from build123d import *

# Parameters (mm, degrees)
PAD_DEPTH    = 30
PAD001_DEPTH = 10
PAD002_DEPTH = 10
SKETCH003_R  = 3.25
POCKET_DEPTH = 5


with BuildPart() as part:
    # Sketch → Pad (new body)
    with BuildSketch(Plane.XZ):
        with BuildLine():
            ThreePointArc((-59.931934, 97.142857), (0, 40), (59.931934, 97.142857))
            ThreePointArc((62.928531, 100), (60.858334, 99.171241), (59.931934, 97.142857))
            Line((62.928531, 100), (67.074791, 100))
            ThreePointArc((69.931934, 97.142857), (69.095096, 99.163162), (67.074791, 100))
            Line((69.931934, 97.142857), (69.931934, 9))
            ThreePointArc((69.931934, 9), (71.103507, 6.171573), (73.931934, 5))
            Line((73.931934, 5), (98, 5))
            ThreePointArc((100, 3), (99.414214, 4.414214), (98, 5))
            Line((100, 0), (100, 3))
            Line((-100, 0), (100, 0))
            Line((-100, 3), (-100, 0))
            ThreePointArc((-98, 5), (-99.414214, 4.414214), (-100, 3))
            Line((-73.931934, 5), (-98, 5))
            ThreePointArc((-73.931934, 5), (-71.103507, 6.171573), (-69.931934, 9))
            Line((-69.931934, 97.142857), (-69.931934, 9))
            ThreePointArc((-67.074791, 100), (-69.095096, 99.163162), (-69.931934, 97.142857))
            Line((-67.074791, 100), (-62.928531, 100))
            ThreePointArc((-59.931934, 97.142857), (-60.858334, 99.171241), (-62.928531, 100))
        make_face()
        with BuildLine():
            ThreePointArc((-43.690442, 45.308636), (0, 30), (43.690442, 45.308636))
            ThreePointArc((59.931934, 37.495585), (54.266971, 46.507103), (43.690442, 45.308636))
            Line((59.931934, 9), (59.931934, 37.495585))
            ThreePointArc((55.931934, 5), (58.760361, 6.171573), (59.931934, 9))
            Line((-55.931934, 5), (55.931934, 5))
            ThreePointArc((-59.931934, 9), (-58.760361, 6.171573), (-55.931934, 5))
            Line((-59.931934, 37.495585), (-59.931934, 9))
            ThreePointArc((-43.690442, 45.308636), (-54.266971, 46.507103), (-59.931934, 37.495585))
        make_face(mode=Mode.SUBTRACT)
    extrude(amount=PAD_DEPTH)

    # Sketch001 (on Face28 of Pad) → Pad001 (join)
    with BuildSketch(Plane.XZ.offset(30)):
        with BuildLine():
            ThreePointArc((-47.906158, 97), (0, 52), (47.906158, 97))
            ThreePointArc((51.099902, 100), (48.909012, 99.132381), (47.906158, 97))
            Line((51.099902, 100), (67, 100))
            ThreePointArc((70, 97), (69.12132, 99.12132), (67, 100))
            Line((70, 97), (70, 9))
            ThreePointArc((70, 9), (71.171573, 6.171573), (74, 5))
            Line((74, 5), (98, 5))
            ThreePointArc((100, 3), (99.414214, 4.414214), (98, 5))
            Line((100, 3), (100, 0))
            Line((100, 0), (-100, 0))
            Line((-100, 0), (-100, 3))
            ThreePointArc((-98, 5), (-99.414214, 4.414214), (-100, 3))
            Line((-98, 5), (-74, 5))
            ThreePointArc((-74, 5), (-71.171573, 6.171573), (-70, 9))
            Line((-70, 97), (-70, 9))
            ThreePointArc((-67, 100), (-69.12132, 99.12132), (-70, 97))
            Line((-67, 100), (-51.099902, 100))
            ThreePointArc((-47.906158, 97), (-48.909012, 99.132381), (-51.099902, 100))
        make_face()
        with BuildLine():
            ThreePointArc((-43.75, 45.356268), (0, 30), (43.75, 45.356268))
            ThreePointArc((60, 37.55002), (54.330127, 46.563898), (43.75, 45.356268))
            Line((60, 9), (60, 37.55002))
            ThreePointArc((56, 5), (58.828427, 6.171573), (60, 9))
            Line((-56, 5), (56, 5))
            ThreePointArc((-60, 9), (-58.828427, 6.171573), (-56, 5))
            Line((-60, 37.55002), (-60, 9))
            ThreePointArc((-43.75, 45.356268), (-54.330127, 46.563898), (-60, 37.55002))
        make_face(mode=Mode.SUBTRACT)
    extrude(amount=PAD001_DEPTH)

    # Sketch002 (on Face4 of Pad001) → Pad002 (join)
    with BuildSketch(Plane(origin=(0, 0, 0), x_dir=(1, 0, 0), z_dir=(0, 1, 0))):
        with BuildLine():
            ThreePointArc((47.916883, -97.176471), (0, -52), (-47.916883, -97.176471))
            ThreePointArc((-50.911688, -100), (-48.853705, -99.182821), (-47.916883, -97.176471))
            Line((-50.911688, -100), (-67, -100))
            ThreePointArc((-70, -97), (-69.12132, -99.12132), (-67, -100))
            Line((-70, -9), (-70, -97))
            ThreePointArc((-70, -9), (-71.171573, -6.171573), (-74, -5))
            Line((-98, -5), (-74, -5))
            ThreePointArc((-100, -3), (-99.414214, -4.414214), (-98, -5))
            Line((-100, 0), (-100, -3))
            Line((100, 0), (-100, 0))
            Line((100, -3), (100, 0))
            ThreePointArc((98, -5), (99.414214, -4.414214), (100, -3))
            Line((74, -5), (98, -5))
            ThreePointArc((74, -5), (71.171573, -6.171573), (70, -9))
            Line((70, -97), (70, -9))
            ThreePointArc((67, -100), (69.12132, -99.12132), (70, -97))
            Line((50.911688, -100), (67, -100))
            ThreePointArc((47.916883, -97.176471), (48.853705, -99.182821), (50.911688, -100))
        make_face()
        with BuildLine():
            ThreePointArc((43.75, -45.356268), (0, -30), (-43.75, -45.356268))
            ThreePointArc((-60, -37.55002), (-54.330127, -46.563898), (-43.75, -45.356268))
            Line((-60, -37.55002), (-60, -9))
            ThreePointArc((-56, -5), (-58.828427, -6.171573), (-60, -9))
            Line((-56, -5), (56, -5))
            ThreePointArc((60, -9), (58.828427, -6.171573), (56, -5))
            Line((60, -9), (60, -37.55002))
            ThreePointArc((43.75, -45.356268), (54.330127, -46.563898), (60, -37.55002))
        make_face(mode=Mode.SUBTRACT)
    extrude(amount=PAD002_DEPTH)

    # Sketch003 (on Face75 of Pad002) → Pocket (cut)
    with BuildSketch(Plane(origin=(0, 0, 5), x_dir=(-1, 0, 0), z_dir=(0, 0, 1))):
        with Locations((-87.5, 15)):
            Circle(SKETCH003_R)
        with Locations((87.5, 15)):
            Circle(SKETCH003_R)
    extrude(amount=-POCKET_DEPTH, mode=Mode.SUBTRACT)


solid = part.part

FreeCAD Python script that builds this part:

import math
import FreeCAD as App
import Part
import Sketcher

V = App.Vector

doc = App.newDocument("Part")
body = doc.addObject("PartDesign::Body", "Body")

sketch1 = body.newObject("Sketcher::SketchObject", "Sketch")
sketch1.AttachmentSupport = (doc.getObject("XZ_Plane"), [""])
sketch1.MapMode = "FlatFace"
sketch1.addGeometry([
    Part.ArcOfCircle(Part.Circle(V(0, 100, 0), V(0, 0, 1), 60), math.radians(-177), math.radians(-3)),
    Part.ArcOfCircle(Part.Circle(V(-62.9, 97, 0), V(0, 0, 1), 3), math.radians(3), math.radians(90)),
    Part.LineSegment(V(-62.9, 100, 0), V(-67.1, 100, 0)),
    Part.ArcOfCircle(Part.Circle(V(-67.1, 97.1, 0), V(0, 0, 1), 2.9), math.radians(90), math.radians(180)),
    Part.LineSegment(V(-69.9, 97.1, 0), V(-69.9, 9, 0)),
    Part.ArcOfCircle(Part.Circle(V(-73.9, 9, 0), V(0, 0, 1), 4), math.radians(-90), math.radians(0)),
    Part.LineSegment(V(-73.9, 5, 0), V(-98, 5, 0)),
    Part.ArcOfCircle(Part.Circle(V(-98, 3, 0), V(0, 0, 1), 2), math.radians(90), math.radians(180)),
    Part.LineSegment(V(-100, 3, 0), V(-100, 0, 0)),
    Part.LineSegment(V(-100, 0, 0), V(100, 0, 0)),
    Part.LineSegment(V(100, 0, 0), V(100, 3, 0)),
    Part.ArcOfCircle(Part.Circle(V(98, 3, 0), V(0, 0, 1), 2), math.radians(0), math.radians(90)),
    Part.LineSegment(V(98, 5, 0), V(73.9, 5, 0)),
    Part.ArcOfCircle(Part.Circle(V(73.9, 9, 0), V(0, 0, 1), 4), math.radians(-180), math.radians(-90)),
    Part.LineSegment(V(69.9, 9, 0), V(69.9, 97.1, 0)),
    Part.ArcOfCircle(Part.Circle(V(67.1, 97.1, 0), V(0, 0, 1), 2.9), math.radians(0), math.radians(90)),
    Part.LineSegment(V(67.1, 100, 0), V(62.9, 100, 0)),
    Part.ArcOfCircle(Part.Circle(V(62.9, 97, 0), V(0, 0, 1), 3), math.radians(90), math.radians(177)),
    Part.ArcOfCircle(Part.Circle(V(0, 100, 0), V(0, 0, 1), 70), math.radians(-129), math.radians(-51)),
    Part.ArcOfCircle(Part.Circle(V(49.9, 37.5, 0), V(0, 0, 1), 10), math.radians(0), math.radians(129)),
    Part.LineSegment(V(59.9, 37.5, 0), V(59.9, 9, 0)),
    Part.ArcOfCircle(Part.Circle(V(55.9, 9, 0), V(0, 0, 1), 4), math.radians(-90), math.radians(0)),
    Part.LineSegment(V(55.9, 5, 0), V(-55.9, 5, 0)),
    Part.ArcOfCircle(Part.Circle(V(-55.9, 9, 0), V(0, 0, 1), 4), math.radians(-180), math.radians(-90)),
    Part.LineSegment(V(-59.9, 9, 0), V(-59.9, 37.5, 0)),
    Part.ArcOfCircle(Part.Circle(V(-49.9, 37.5, 0), V(0, 0, 1), 10), math.radians(51), math.radians(180)),
], False)
sketch1.addConstraint([
    Sketcher.Constraint("Tangent", 0, 1, 1, 1),
    Sketcher.Constraint("Tangent", 1, 2, 2, 1),
    Sketcher.Constraint("Tangent", 2, 2, 3, 1),
    Sketcher.Constraint("Tangent", 3, 2, 4, 1),
    Sketcher.Constraint("Tangent", 4, 2, 5, 2),
    Sketcher.Constraint("Tangent", 5, 1, 6, 1),
    Sketcher.Constraint("Tangent", 6, 2, 7, 1),
    Sketcher.Constraint("Tangent", 7, 2, 8, 1),
    Sketcher.Constraint("Coincident", 8, 2, 9, 1),
    Sketcher.Constraint("Coincident", 9, 2, 10, 1),
    Sketcher.Constraint("Tangent", 10, 2, 11, 1),
    Sketcher.Constraint("Tangent", 11, 2, 12, 1),
    Sketcher.Constraint("Tangent", 12, 2, 13, 2),
    Sketcher.Constraint("Tangent", 13, 1, 14, 1),
    Sketcher.Constraint("Tangent", 14, 2, 15, 1),
    Sketcher.Constraint("Tangent", 15, 2, 16, 1),
    Sketcher.Constraint("Tangent", 16, 2, 17, 1),
    Sketcher.Constraint("Tangent", 17, 2, 0, 2),
    Sketcher.Constraint("Tangent", 18, 2, 19, 2),
    Sketcher.Constraint("Tangent", 19, 1, 20, 1),
    Sketcher.Constraint("Tangent", 20, 2, 21, 2),
    Sketcher.Constraint("Tangent", 21, 1, 22, 1),
    Sketcher.Constraint("Tangent", 22, 2, 23, 2),
    Sketcher.Constraint("Tangent", 23, 1, 24, 1),
    Sketcher.Constraint("Tangent", 24, 2, 25, 2),
    Sketcher.Constraint("Tangent", 25, 1, 18, 1),
    Sketcher.Constraint("Horizontal", 2),
    Sketcher.Constraint("Vertical", 4),
    Sketcher.Constraint("Horizontal", 6),
    Sketcher.Constraint("Vertical", 8),
    Sketcher.Constraint("Horizontal", 9),
    Sketcher.Constraint("Vertical", 10),
    Sketcher.Constraint("Horizontal", 12),
    Sketcher.Constraint("Vertical", 14),
    Sketcher.Constraint("Horizontal", 16),
    Sketcher.Constraint("Vertical", 20),
    Sketcher.Constraint("Horizontal", 22),
    Sketcher.Constraint("Vertical", 24),
    Sketcher.Constraint("Coincident", 18, 3, 0, 3),
    Sketcher.Constraint("Equal", 7, 11),
    Sketcher.Constraint("Equal", 5, 13),
    Sketcher.Constraint("Equal", 3, 15),
    Sketcher.Constraint("Equal", 1, 17),
    Sketcher.Constraint("Equal", 13, 21),
    Sketcher.Constraint("Equal", 21, 23),
    Sketcher.Constraint("Equal", 19, 25),
    Sketcher.Constraint("Symmetric", 8, 2, 9, 2, -1, 1),
    Sketcher.Constraint("Symmetric", 5, 3, 13, 3, -2),
    Sketcher.Constraint("Symmetric", 1, 3, 17, 3, -2),
    Sketcher.Constraint("Horizontal", 13, 3, 21, 3),
    Sketcher.Constraint("Horizontal", 19, 3, 25, 3),
    Sketcher.Constraint("Horizontal", 15, 3, 0, 1),
    Sketcher.Constraint("Horizontal", 18, 3, 1, 2),
    Sketcher.Constraint("Vertical", 17, 2, 19, 1),
    Sketcher.Constraint("Radius", 0, 60.0),
    Sketcher.Constraint("Radius", 1, 2.999999),
    Sketcher.Constraint("Radius", 5, 4.0),
    Sketcher.Constraint("Radius", 7, 1.999999),
    Sketcher.Constraint("Radius", 18, 70.000001),
    Sketcher.Constraint("Radius", 19, 9.999999),
    Sketcher.Constraint("DistanceX", 9, 1, 9, 2, 200.0),
    Sketcher.Constraint("DistanceY", 8, 2, 8, 1, 3.0),
    Sketcher.Constraint("DistanceY", -1, 1, 0, 3, 100.0),
    Sketcher.Constraint("DistanceX", 19, 3, 13, 3, 24.0),
])
pad1 = body.newObject("PartDesign::Pad", "Pad")
pad1.Profile = sketch1
pad1.Length = 30

sketch2 = body.newObject("Sketcher::SketchObject", "Sketch001")
sketch2.AttachmentSupport = (doc.getObject("XZ_Plane"), [""])
sketch2.MapMode = "FlatFace"
sketch2.AttachmentOffset = App.Placement(V(0, 0, 30), App.Rotation())
sketch2.addGeometry([
    Part.ArcOfCircle(Part.Circle(V(0, 100, 0), V(0, 0, 1), 48), math.radians(-176), math.radians(-4)),
    Part.ArcOfCircle(Part.Circle(V(-51.1, 96.8, 0), V(0, 0, 1), 3.2), math.radians(4), math.radians(90)),
    Part.LineSegment(V(-51.1, 100, 0), V(-67, 100, 0)),
    Part.ArcOfCircle(Part.Circle(V(-67, 97, 0), V(0, 0, 1), 3), math.radians(90), math.radians(180)),
    Part.LineSegment(V(-70, 97, 0), V(-70, 9, 0)),
    Part.ArcOfCircle(Part.Circle(V(-74, 9, 0), V(0, 0, 1), 4), math.radians(-90), math.radians(0)),
    Part.LineSegment(V(-74, 5, 0), V(-98, 5, 0)),
    Part.ArcOfCircle(Part.Circle(V(-98, 3, 0), V(0, 0, 1), 2), math.radians(90), math.radians(180)),
    Part.LineSegment(V(-100, 3, 0), V(-100, 0, 0)),
    Part.LineSegment(V(-100, 0, 0), V(100, 0, 0)),
    Part.LineSegment(V(100, 0, 0), V(100, 3, 0)),
    Part.ArcOfCircle(Part.Circle(V(98, 3, 0), V(0, 0, 1), 2), math.radians(0), math.radians(90)),
    Part.LineSegment(V(98, 5, 0), V(74, 5, 0)),
    Part.ArcOfCircle(Part.Circle(V(74, 9, 0), V(0, 0, 1), 4), math.radians(-180), math.radians(-90)),
    Part.LineSegment(V(70, 9, 0), V(70, 97, 0)),
    Part.ArcOfCircle(Part.Circle(V(67, 97, 0), V(0, 0, 1), 3), math.radians(0), math.radians(90)),
    Part.LineSegment(V(67, 100, 0), V(51.1, 100, 0)),
    Part.ArcOfCircle(Part.Circle(V(51.1, 96.8, 0), V(0, 0, 1), 3.2), math.radians(90), math.radians(176)),
    Part.ArcOfCircle(Part.Circle(V(0, 100, 0), V(0, 0, 1), 70), math.radians(-129), math.radians(-51)),
    Part.ArcOfCircle(Part.Circle(V(50, 37.6, 0), V(0, 0, 1), 10), math.radians(0), math.radians(129)),
    Part.LineSegment(V(60, 37.6, 0), V(60, 9, 0)),
    Part.ArcOfCircle(Part.Circle(V(56, 9, 0), V(0, 0, 1), 4), math.radians(-90), math.radians(0)),
    Part.LineSegment(V(56, 5, 0), V(-56, 5, 0)),
    Part.ArcOfCircle(Part.Circle(V(-56, 9, 0), V(0, 0, 1), 4), math.radians(-180), math.radians(-90)),
    Part.LineSegment(V(-60, 9, 0), V(-60, 37.6, 0)),
    Part.ArcOfCircle(Part.Circle(V(-50, 37.6, 0), V(0, 0, 1), 10), math.radians(51), math.radians(180)),
], False)
sketch2.addConstraint([
    Sketcher.Constraint("Tangent", 0, 1, 1, 1),
    Sketcher.Constraint("Tangent", 1, 2, 2, 1),
    Sketcher.Constraint("Tangent", 2, 2, 3, 1),
    Sketcher.Constraint("Tangent", 3, 2, 4, 1),
    Sketcher.Constraint("Tangent", 4, 2, 5, 2),
    Sketcher.Constraint("Tangent", 5, 1, 6, 1),
    Sketcher.Constraint("Tangent", 6, 2, 7, 1),
    Sketcher.Constraint("Tangent", 7, 2, 8, 1),
    Sketcher.Constraint("Coincident", 8, 2, 9, 1),
    Sketcher.Constraint("Coincident", 9, 2, 10, 1),
    Sketcher.Constraint("Tangent", 10, 2, 11, 1),
    Sketcher.Constraint("Tangent", 11, 2, 12, 1),
    Sketcher.Constraint("Tangent", 12, 2, 13, 2),
    Sketcher.Constraint("Tangent", 13, 1, 14, 1),
    Sketcher.Constraint("Tangent", 14, 2, 15, 1),
    Sketcher.Constraint("Tangent", 15, 2, 16, 1),
    Sketcher.Constraint("Tangent", 16, 2, 17, 1),
    Sketcher.Constraint("Tangent", 17, 2, 0, 2),
    Sketcher.Constraint("Tangent", 18, 2, 19, 2),
    Sketcher.Constraint("Tangent", 19, 1, 20, 1),
    Sketcher.Constraint("Tangent", 20, 2, 21, 2),
    Sketcher.Constraint("Tangent", 21, 1, 22, 1),
    Sketcher.Constraint("Tangent", 22, 2, 23, 2),
    Sketcher.Constraint("Tangent", 23, 1, 24, 1),
    Sketcher.Constraint("Tangent", 24, 2, 25, 2),
    Sketcher.Constraint("Tangent", 25, 1, 18, 1),
    Sketcher.Constraint("Horizontal", 2),
    Sketcher.Constraint("Vertical", 4),
    Sketcher.Constraint("Horizontal", 6),
    Sketcher.Constraint("Vertical", 8),
    Sketcher.Constraint("Horizontal", 9),
    Sketcher.Constraint("Vertical", 10),
    Sketcher.Constraint("Horizontal", 12),
    Sketcher.Constraint("Vertical", 14),
    Sketcher.Constraint("Horizontal", 16),
    Sketcher.Constraint("Vertical", 20),
    Sketcher.Constraint("Horizontal", 22),
    Sketcher.Constraint("Vertical", 24),
    Sketcher.Constraint("Coincident", 18, 3, 0, 3),
    Sketcher.Constraint("Equal", 7, 11),
    Sketcher.Constraint("Equal", 5, 13),
    Sketcher.Constraint("Equal", 3, 15),
    Sketcher.Constraint("Equal", 1, 17),
    Sketcher.Constraint("Equal", 13, 21),
    Sketcher.Constraint("Equal", 21, 23),
    Sketcher.Constraint("Equal", 19, 25),
    Sketcher.Constraint("Symmetric", 8, 2, 9, 2, -1, 1),
    Sketcher.Constraint("Symmetric", 5, 3, 13, 3, -2),
    Sketcher.Constraint("Symmetric", 1, 3, 17, 3, -2),
    Sketcher.Constraint("Horizontal", 13, 3, 21, 3),
    Sketcher.Constraint("Horizontal", 19, 3, 25, 3),
    Sketcher.Constraint("Horizontal", 15, 3, 0, 1),
    Sketcher.Constraint("Horizontal", 18, 3, 1, 2),
    Sketcher.Constraint("Radius", 0, 48.0),
    Sketcher.Constraint("Radius", 3, 3.000001),
    Sketcher.Constraint("Radius", 5, 4.0),
    Sketcher.Constraint("Radius", 7, 1.999999),
    Sketcher.Constraint("Radius", 18, 69.999998),
    Sketcher.Constraint("Radius", 19, 10.0),
    Sketcher.Constraint("DistanceX", 6, 2, 6, 1, 24.0),
    Sketcher.Constraint("DistanceX", 9, 1, 9, 2, 200.0),
    Sketcher.Constraint("DistanceX", 22, 2, 22, 1, 112.0),
    Sketcher.Constraint("DistanceY", 4, 2, 4, 1, 88.0),
    Sketcher.Constraint("DistanceY", 8, 2, 8, 1, 3.0),
])
pad2 = body.newObject("PartDesign::Pad", "Pad001")
pad2.Profile = sketch2
pad2.Length = 10

sketch3 = body.newObject("Sketcher::SketchObject", "Sketch002")
sketch3.AttachmentSupport = (doc.getObject("XZ_Plane"), [""])
sketch3.MapMode = "FlatFace"
sketch3.addGeometry([
    Part.ArcOfCircle(Part.Circle(V(0, 100, 0), V(0, 0, 1), 48), math.radians(-177), math.radians(-3)),
    Part.ArcOfCircle(Part.Circle(V(50.9, 97, 0), V(0, 0, 1), 3), math.radians(90), math.radians(177)),
    Part.LineSegment(V(50.9, 100, 0), V(67, 100, 0)),
    Part.ArcOfCircle(Part.Circle(V(67, 97, 0), V(0, 0, 1), 3), math.radians(0), math.radians(90)),
    Part.LineSegment(V(70, 97, 0), V(70, 9, 0)),
    Part.ArcOfCircle(Part.Circle(V(74, 9, 0), V(0, 0, 1), 4), math.radians(-180), math.radians(-90)),
    Part.LineSegment(V(74, 5, 0), V(98, 5, 0)),
    Part.ArcOfCircle(Part.Circle(V(98, 3, 0), V(0, 0, 1), 2), math.radians(0), math.radians(90)),
    Part.LineSegment(V(100, 3, 0), V(100, 0, 0)),
    Part.LineSegment(V(100, 0, 0), V(-100, 0, 0)),
    Part.LineSegment(V(-100, 0, 0), V(-100, 3, 0)),
    Part.ArcOfCircle(Part.Circle(V(-98, 3, 0), V(0, 0, 1), 2), math.radians(90), math.radians(180)),
    Part.LineSegment(V(-98, 5, 0), V(-74, 5, 0)),
    Part.ArcOfCircle(Part.Circle(V(-74, 9, 0), V(0, 0, 1), 4), math.radians(-90), math.radians(0)),
    Part.LineSegment(V(-70, 9, 0), V(-70, 97, 0)),
    Part.ArcOfCircle(Part.Circle(V(-67, 97, 0), V(0, 0, 1), 3), math.radians(90), math.radians(180)),
    Part.LineSegment(V(-67, 100, 0), V(-50.9, 100, 0)),
    Part.ArcOfCircle(Part.Circle(V(-50.9, 97, 0), V(0, 0, 1), 3), math.radians(3), math.radians(90)),
    Part.ArcOfCircle(Part.Circle(V(0, 100, 0), V(0, 0, 1), 70), math.radians(-129), math.radians(-51)),
    Part.ArcOfCircle(Part.Circle(V(-50, 37.6, 0), V(0, 0, 1), 10), math.radians(51), math.radians(180)),
    Part.LineSegment(V(-60, 37.6, 0), V(-60, 9, 0)),
    Part.ArcOfCircle(Part.Circle(V(-56, 9, 0), V(0, 0, 1), 4), math.radians(-180), math.radians(-90)),
    Part.LineSegment(V(-56, 5, 0), V(56, 5, 0)),
    Part.ArcOfCircle(Part.Circle(V(56, 9, 0), V(0, 0, 1), 4), math.radians(-90), math.radians(0)),
    Part.LineSegment(V(60, 9, 0), V(60, 37.6, 0)),
    Part.ArcOfCircle(Part.Circle(V(50, 37.6, 0), V(0, 0, 1), 10), math.radians(0), math.radians(129)),
], False)
sketch3.addConstraint([
    Sketcher.Constraint("Tangent", 0, 2, 1, 2),
    Sketcher.Constraint("Tangent", 1, 1, 2, 1),
    Sketcher.Constraint("Tangent", 2, 2, 3, 2),
    Sketcher.Constraint("Tangent", 3, 1, 4, 1),
    Sketcher.Constraint("Tangent", 4, 2, 5, 1),
    Sketcher.Constraint("Tangent", 5, 2, 6, 1),
    Sketcher.Constraint("Tangent", 6, 2, 7, 2),
    Sketcher.Constraint("Tangent", 7, 1, 8, 1),
    Sketcher.Constraint("Coincident", 8, 2, 9, 1),
    Sketcher.Constraint("Coincident", 9, 2, 10, 1),
    Sketcher.Constraint("Tangent", 10, 2, 11, 2),
    Sketcher.Constraint("Tangent", 11, 1, 12, 1),
    Sketcher.Constraint("Tangent", 12, 2, 13, 1),
    Sketcher.Constraint("Tangent", 13, 2, 14, 1),
    Sketcher.Constraint("Tangent", 14, 2, 15, 2),
    Sketcher.Constraint("Tangent", 15, 1, 16, 1),
    Sketcher.Constraint("Tangent", 16, 2, 17, 2),
    Sketcher.Constraint("Tangent", 17, 1, 0, 1),
    Sketcher.Constraint("Tangent", 18, 1, 19, 1),
    Sketcher.Constraint("Tangent", 19, 2, 20, 1),
    Sketcher.Constraint("Tangent", 20, 2, 21, 1),
    Sketcher.Constraint("Tangent", 21, 2, 22, 1),
    Sketcher.Constraint("Tangent", 22, 2, 23, 1),
    Sketcher.Constraint("Tangent", 23, 2, 24, 1),
    Sketcher.Constraint("Tangent", 24, 2, 25, 1),
    Sketcher.Constraint("Tangent", 25, 2, 18, 2),
    Sketcher.Constraint("Horizontal", 2),
    Sketcher.Constraint("Vertical", 4),
    Sketcher.Constraint("Horizontal", 6),
    Sketcher.Constraint("Vertical", 8),
    Sketcher.Constraint("Horizontal", 9),
    Sketcher.Constraint("Vertical", 10),
    Sketcher.Constraint("Horizontal", 12),
    Sketcher.Constraint("Vertical", 14),
    Sketcher.Constraint("Horizontal", 16),
    Sketcher.Constraint("Vertical", 20),
    Sketcher.Constraint("Horizontal", 22),
    Sketcher.Constraint("Vertical", 24),
    Sketcher.Constraint("Coincident", 18, 3, 0, 3),
    Sketcher.Constraint("Equal", 7, 11),
    Sketcher.Constraint("Equal", 5, 13),
    Sketcher.Constraint("Equal", 3, 15),
    Sketcher.Constraint("Equal", 1, 17),
    Sketcher.Constraint("Equal", 13, 21),
    Sketcher.Constraint("Equal", 21, 23),
    Sketcher.Constraint("Equal", 19, 25),
    Sketcher.Constraint("Symmetric", 8, 2, 9, 2, -1, 1),
    Sketcher.Constraint("Symmetric", 5, 3, 13, 3, -2),
    Sketcher.Constraint("Symmetric", 1, 3, 17, 3, -2),
    Sketcher.Constraint("Horizontal", 13, 3, 21, 3),
    Sketcher.Constraint("Horizontal", 19, 3, 25, 3),
    Sketcher.Constraint("Horizontal", 18, 3, 1, 1),
    Sketcher.Constraint("Horizontal", 17, 3, 3, 1),
    Sketcher.Constraint("Radius", 0, 48.0),
    Sketcher.Constraint("Radius", 1, 2.999999),
    Sketcher.Constraint("Radius", 5, 4.0),
    Sketcher.Constraint("Radius", 7, 1.999999),
    Sketcher.Constraint("Radius", 18, 69.999998),
    Sketcher.Constraint("Radius", 19, 10.0),
    Sketcher.Constraint("DistanceX", 6, 1, 6, 2, 24.0),
    Sketcher.Constraint("DistanceX", 9, 2, 9, 1, 200.0),
    Sketcher.Constraint("DistanceX", 22, 1, 22, 2, 112.0),
    Sketcher.Constraint("DistanceY", 4, 2, 4, 1, 88.0),
    Sketcher.Constraint("DistanceY", 8, 2, 8, 1, 3.0),
])
pad3 = body.newObject("PartDesign::Pad", "Pad002")
pad3.Profile = sketch3
pad3.Length = 10
pad3.Reversed = True

sketch4 = body.newObject("Sketcher::SketchObject", "Sketch003")
sketch4.AttachmentSupport = (doc.getObject("XY_Plane"), [""])
sketch4.MapMode = "FlatFace"
sketch4.AttachmentOffset = App.Placement(V(0, 0, 5), App.Rotation())
sketch4.addGeometry([
    Part.Circle(V(87.5, -15, 0), V(0, 0, 1), 3.2),
    Part.Circle(V(-87.5, -15, 0), V(0, 0, 1), 3.2),
], False)
sketch4.addConstraint([
    Sketcher.Constraint("Equal", 0, 1),
    Sketcher.Constraint("Symmetric", 0, 3, 1, 3, -2),
    Sketcher.Constraint("Diameter", 0, 6.5),
    Sketcher.Constraint("DistanceY", 0, 3, -1, 1, 15.0),
    Sketcher.Constraint("DistanceX", 1, 3, 0, 3, 175.0),
])
pocket1 = body.newObject("PartDesign::Pocket", "Pocket")
pocket1.Profile = sketch4
pocket1.Length = 5

doc.recompute()
